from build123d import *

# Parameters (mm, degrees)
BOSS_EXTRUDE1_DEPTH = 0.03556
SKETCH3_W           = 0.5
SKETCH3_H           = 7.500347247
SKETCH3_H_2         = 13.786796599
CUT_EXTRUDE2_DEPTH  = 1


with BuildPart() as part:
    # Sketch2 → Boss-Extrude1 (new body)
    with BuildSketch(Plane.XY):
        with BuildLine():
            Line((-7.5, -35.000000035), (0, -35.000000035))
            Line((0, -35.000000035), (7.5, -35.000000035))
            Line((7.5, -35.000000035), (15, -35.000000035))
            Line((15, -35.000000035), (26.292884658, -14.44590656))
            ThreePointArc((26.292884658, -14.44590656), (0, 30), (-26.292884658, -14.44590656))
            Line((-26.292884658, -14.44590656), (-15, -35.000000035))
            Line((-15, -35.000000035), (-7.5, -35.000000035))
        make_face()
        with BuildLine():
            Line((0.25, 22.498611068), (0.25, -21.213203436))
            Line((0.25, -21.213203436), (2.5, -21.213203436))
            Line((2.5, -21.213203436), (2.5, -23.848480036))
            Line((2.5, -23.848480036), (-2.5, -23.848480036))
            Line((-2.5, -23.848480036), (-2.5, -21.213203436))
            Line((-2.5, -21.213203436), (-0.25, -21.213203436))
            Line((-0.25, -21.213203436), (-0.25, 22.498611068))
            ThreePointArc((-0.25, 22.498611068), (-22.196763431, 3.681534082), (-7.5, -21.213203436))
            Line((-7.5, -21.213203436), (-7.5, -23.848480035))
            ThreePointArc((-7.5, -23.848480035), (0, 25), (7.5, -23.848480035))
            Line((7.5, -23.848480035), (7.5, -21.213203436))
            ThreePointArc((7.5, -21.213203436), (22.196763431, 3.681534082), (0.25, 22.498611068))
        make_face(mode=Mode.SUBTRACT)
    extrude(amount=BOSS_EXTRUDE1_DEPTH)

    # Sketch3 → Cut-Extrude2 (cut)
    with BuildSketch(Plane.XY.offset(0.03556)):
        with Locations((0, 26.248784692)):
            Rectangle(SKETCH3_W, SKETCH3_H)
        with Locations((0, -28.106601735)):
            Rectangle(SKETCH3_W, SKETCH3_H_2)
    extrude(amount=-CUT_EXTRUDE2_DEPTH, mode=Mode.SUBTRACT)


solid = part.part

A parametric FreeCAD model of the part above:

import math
import FreeCAD as App
import Part
import Sketcher

V = App.Vector
Q = App.Units.Quantity


def add_polygon(sketch, points):
    """Adds a closed chain of lines whose ends are joined by coincident constraints."""
    first, n = sketch.GeometryCount, len(points)
    for a, b in zip(points, points[1:] + points[:1]):
        sketch.addGeometry(Part.LineSegment(App.Vector(*a, 0), App.Vector(*b, 0)), False)
    for i in range(n):
        sketch.addConstraint(Sketcher.Constraint("Coincident", first + i, 2, first + (i + 1) % n, 1))

doc = App.newDocument("Part")
body = doc.addObject("PartDesign::Body", "Body")
body.AllowCompound = True

sketch1 = body.newObject("Sketcher::SketchObject", "Sketch")
sketch1.AttachmentSupport = (doc.getObject("XY_Plane"), [""])
sketch1.MapMode = "FlatFace"
sketch1.addGeometry([
    Part.LineSegment(V(15, -35, 0), V(26.292885, -14.445907, 0)),
    Part.ArcOfCircle(Part.Circle(V(0, 0, 0), V(0, 0, 1), 30), math.radians(-28.785391), math.radians(208.785391)),
    Part.LineSegment(V(-26.292885, -14.445907, 0), V(-15, -35, 0)),
    Part.LineSegment(V(-15, -35, 0), V(15, -35, 0)),
    Part.ArcOfCircle(Part.Circle(V(0, 0, 0), V(0, 0, 1), 22.5), math.radians(-70.528779), math.radians(89.363367)),
    Part.LineSegment(V(0.25, 22.498611, 0), V(0.25, -21.213203, 0)),
    Part.LineSegment(V(0.25, -21.213203, 0), V(2.5, -21.213203, 0)),
    Part.LineSegment(V(2.5, -21.213203, 0), V(2.5, -23.84848, 0)),
    Part.LineSegment(V(2.5, -23.84848, 0), V(-2.5, -23.84848, 0)),
    Part.LineSegment(V(-2.5, -23.84848, 0), V(-2.5, -21.213203, 0)),
    Part.LineSegment(V(-2.5, -21.213203, 0), V(-0.25, -21.213203, 0)),
    Part.LineSegment(V(-0.25, -21.213203, 0), V(-0.25, 22.498611, 0)),
    Part.ArcOfCircle(Part.Circle(V(0, 0, 0), V(0, 0, 1), 22.5), math.radians(90.636633), math.radians(250.528779)),
    Part.LineSegment(V(-7.5, -21.213203, 0), V(-7.5, -23.84848, 0)),
    Part.ArcOfCircle(Part.Circle(V(0, 0, 0), V(0, 0, 1), 25), math.radians(-72.542397), math.radians(252.542397)),
    Part.LineSegment(V(7.5, -23.84848, 0), V(7.5, -21.213203, 0)),
], False)
sketch1.addConstraint([
    Sketcher.Constraint("Tangent", 0, 2, 1, 1),
    Sketcher.Constraint("Tangent", 1, 2, 2, 1),
    Sketcher.Constraint("Coincident", 2, 2, 3, 1),
    Sketcher.Constraint("Coincident", 3, 2, 0, 1),
    Sketcher.Constraint("Coincident", 4, 2, 5, 1),
    Sketcher.Constraint("Coincident", 5, 2, 6, 1),
    Sketcher.Constraint("Coincident", 6, 2, 7, 1),
    Sketcher.Constraint("Coincident", 7, 2, 8, 1),
    Sketcher.Constraint("Coincident", 8, 2, 9, 1),
    Sketcher.Constraint("Coincident", 9, 2, 10, 1),
    Sketcher.Constraint("Coincident", 10, 2, 11, 1),
    Sketcher.Constraint("Coincident", 11, 2, 12, 1),
    Sketcher.Constraint("Coincident", 12, 2, 13, 1),
    Sketcher.Constraint("Coincident", 13, 2, 14, 2),
    Sketcher.Constraint("Coincident", 14, 1, 15, 1),
    Sketcher.Constraint("Coincident", 15, 2, 4, 1),
    Sketcher.Constraint("Horizontal", 3),
    Sketcher.Constraint("Vertical", 5),
    Sketcher.Constraint("Horizontal", 6),
    Sketcher.Constraint("Vertical", 7),
    Sketcher.Constraint("Horizontal", 8),
    Sketcher.Constraint("Vertical", 9),
    Sketcher.Constraint("Horizontal", 10),
    Sketcher.Constraint("Vertical", 11),
    Sketcher.Constraint("Vertical", 13),
    Sketcher.Constraint("Vertical", 15),
    Sketcher.Constraint("Coincident", 1, 3, -1, 1),
    Sketcher.Constraint("Coincident", 4, 3, -1, 1),
    Sketcher.Constraint("Coincident", 12, 3, -1, 1),
    Sketcher.Constraint("Coincident", 14, 3, -1, 1),
    Sketcher.Constraint("Equal", 4, 12),
    Sketcher.Constraint("Symmetric", 6, 2, 9, 2, -2),
    Sketcher.Constraint("Horizontal", 0, 2, 1, 2),
    Sketcher.Constraint("Horizontal", 4, 2, 11, 2),
    Sketcher.Constraint("Horizontal", 10, 2, 12, 2),
    Sketcher.Constraint("Horizontal", 8, 2, 13, 2),
    Sketcher.Constraint("Horizontal", 13, 2, 14, 1),
    Sketcher.Constraint("Radius", 1, Q("30 mm")),
    Sketcher.Constraint("Radius", 14, Q("25 mm")),
    Sketcher.Constraint("Radius", 4, Q("22.5 mm")),
    Sketcher.Constraint("DistanceX", 3, 1, 3, 2, Q("30 mm")),
    Sketcher.Constraint("DistanceX", 8, 2, 8, 1, Q("5 mm")),
    Sketcher.Constraint("DistanceY", 2, 2, -1, 1, Q("35 mm")),
    Sketcher.Constraint("DistanceX", 12, 2, 9, 2, Q("5 mm")),
    Sketcher.Constraint("DistanceX", 6, 1, 6, 2, Q("2.25 mm")),
])
pad1 = body.newObject("PartDesign::Pad", "Pad")
pad1.Profile = sketch1
pad1.Length = 0.03556

sketch2 = body.newObject("Sketcher::SketchObject", "Sketch001")
sketch2.AttachmentSupport = (doc.getObject("XY_Plane"), [""])
sketch2.MapMode = "FlatFace"
sketch2.AttachmentOffset = App.Placement(V(0, 0, 0.03556), App.Rotation())
add_polygon(sketch2, [(-0.25, 29.998958), (-0.25, 22.498611), (0.25, 22.498611), (0.25, 29.998958)])
add_polygon(sketch2, [(-0.25, -21.213203), (-0.25, -35), (0.25, -35), (0.25, -21.213203)])
sketch2.addConstraint([
    Sketcher.Constraint("Vertical", 0),
    Sketcher.Constraint("Horizontal", 1),
    Sketcher.Constraint("Vertical", 2),
    Sketcher.Constraint("Horizontal", 3),
    Sketcher.Constraint("Vertical", 4),
    Sketcher.Constraint("Horizontal", 5),
    Sketcher.Constraint("Vertical", 6),
    Sketcher.Constraint("Horizontal", 7),
    Sketcher.Constraint("Vertical", 3, 2, 4, 2),
    Sketcher.Constraint("Vertical", 2, 2, 5, 2),
    Sketcher.Constraint("DistanceX", 1, 1, 1, 2, Q("0.5 mm")),
    Sketcher.Constraint("DistanceY", 4, 2, -1, 1, Q("35 mm")),
    Sketcher.Constraint("DistanceX", 0, 2, -1, 1, Q("0.25 mm")),
    Sketcher.Constraint("DistanceY", 0, 2, 0, 1, Q("7.500347 mm")),
    Sketcher.Constraint("DistanceY", 4, 2, 4, 1, Q("13.786797 mm")),
    Sketcher.Constraint("DistanceY", -1, 1, 0, 2, Q("22.498611 mm")),
])
pocket1 = body.newObject("PartDesign::Pocket", "Pocket")
pocket1.Profile = sketch2
pocket1.Length = 1

doc.recompute()
